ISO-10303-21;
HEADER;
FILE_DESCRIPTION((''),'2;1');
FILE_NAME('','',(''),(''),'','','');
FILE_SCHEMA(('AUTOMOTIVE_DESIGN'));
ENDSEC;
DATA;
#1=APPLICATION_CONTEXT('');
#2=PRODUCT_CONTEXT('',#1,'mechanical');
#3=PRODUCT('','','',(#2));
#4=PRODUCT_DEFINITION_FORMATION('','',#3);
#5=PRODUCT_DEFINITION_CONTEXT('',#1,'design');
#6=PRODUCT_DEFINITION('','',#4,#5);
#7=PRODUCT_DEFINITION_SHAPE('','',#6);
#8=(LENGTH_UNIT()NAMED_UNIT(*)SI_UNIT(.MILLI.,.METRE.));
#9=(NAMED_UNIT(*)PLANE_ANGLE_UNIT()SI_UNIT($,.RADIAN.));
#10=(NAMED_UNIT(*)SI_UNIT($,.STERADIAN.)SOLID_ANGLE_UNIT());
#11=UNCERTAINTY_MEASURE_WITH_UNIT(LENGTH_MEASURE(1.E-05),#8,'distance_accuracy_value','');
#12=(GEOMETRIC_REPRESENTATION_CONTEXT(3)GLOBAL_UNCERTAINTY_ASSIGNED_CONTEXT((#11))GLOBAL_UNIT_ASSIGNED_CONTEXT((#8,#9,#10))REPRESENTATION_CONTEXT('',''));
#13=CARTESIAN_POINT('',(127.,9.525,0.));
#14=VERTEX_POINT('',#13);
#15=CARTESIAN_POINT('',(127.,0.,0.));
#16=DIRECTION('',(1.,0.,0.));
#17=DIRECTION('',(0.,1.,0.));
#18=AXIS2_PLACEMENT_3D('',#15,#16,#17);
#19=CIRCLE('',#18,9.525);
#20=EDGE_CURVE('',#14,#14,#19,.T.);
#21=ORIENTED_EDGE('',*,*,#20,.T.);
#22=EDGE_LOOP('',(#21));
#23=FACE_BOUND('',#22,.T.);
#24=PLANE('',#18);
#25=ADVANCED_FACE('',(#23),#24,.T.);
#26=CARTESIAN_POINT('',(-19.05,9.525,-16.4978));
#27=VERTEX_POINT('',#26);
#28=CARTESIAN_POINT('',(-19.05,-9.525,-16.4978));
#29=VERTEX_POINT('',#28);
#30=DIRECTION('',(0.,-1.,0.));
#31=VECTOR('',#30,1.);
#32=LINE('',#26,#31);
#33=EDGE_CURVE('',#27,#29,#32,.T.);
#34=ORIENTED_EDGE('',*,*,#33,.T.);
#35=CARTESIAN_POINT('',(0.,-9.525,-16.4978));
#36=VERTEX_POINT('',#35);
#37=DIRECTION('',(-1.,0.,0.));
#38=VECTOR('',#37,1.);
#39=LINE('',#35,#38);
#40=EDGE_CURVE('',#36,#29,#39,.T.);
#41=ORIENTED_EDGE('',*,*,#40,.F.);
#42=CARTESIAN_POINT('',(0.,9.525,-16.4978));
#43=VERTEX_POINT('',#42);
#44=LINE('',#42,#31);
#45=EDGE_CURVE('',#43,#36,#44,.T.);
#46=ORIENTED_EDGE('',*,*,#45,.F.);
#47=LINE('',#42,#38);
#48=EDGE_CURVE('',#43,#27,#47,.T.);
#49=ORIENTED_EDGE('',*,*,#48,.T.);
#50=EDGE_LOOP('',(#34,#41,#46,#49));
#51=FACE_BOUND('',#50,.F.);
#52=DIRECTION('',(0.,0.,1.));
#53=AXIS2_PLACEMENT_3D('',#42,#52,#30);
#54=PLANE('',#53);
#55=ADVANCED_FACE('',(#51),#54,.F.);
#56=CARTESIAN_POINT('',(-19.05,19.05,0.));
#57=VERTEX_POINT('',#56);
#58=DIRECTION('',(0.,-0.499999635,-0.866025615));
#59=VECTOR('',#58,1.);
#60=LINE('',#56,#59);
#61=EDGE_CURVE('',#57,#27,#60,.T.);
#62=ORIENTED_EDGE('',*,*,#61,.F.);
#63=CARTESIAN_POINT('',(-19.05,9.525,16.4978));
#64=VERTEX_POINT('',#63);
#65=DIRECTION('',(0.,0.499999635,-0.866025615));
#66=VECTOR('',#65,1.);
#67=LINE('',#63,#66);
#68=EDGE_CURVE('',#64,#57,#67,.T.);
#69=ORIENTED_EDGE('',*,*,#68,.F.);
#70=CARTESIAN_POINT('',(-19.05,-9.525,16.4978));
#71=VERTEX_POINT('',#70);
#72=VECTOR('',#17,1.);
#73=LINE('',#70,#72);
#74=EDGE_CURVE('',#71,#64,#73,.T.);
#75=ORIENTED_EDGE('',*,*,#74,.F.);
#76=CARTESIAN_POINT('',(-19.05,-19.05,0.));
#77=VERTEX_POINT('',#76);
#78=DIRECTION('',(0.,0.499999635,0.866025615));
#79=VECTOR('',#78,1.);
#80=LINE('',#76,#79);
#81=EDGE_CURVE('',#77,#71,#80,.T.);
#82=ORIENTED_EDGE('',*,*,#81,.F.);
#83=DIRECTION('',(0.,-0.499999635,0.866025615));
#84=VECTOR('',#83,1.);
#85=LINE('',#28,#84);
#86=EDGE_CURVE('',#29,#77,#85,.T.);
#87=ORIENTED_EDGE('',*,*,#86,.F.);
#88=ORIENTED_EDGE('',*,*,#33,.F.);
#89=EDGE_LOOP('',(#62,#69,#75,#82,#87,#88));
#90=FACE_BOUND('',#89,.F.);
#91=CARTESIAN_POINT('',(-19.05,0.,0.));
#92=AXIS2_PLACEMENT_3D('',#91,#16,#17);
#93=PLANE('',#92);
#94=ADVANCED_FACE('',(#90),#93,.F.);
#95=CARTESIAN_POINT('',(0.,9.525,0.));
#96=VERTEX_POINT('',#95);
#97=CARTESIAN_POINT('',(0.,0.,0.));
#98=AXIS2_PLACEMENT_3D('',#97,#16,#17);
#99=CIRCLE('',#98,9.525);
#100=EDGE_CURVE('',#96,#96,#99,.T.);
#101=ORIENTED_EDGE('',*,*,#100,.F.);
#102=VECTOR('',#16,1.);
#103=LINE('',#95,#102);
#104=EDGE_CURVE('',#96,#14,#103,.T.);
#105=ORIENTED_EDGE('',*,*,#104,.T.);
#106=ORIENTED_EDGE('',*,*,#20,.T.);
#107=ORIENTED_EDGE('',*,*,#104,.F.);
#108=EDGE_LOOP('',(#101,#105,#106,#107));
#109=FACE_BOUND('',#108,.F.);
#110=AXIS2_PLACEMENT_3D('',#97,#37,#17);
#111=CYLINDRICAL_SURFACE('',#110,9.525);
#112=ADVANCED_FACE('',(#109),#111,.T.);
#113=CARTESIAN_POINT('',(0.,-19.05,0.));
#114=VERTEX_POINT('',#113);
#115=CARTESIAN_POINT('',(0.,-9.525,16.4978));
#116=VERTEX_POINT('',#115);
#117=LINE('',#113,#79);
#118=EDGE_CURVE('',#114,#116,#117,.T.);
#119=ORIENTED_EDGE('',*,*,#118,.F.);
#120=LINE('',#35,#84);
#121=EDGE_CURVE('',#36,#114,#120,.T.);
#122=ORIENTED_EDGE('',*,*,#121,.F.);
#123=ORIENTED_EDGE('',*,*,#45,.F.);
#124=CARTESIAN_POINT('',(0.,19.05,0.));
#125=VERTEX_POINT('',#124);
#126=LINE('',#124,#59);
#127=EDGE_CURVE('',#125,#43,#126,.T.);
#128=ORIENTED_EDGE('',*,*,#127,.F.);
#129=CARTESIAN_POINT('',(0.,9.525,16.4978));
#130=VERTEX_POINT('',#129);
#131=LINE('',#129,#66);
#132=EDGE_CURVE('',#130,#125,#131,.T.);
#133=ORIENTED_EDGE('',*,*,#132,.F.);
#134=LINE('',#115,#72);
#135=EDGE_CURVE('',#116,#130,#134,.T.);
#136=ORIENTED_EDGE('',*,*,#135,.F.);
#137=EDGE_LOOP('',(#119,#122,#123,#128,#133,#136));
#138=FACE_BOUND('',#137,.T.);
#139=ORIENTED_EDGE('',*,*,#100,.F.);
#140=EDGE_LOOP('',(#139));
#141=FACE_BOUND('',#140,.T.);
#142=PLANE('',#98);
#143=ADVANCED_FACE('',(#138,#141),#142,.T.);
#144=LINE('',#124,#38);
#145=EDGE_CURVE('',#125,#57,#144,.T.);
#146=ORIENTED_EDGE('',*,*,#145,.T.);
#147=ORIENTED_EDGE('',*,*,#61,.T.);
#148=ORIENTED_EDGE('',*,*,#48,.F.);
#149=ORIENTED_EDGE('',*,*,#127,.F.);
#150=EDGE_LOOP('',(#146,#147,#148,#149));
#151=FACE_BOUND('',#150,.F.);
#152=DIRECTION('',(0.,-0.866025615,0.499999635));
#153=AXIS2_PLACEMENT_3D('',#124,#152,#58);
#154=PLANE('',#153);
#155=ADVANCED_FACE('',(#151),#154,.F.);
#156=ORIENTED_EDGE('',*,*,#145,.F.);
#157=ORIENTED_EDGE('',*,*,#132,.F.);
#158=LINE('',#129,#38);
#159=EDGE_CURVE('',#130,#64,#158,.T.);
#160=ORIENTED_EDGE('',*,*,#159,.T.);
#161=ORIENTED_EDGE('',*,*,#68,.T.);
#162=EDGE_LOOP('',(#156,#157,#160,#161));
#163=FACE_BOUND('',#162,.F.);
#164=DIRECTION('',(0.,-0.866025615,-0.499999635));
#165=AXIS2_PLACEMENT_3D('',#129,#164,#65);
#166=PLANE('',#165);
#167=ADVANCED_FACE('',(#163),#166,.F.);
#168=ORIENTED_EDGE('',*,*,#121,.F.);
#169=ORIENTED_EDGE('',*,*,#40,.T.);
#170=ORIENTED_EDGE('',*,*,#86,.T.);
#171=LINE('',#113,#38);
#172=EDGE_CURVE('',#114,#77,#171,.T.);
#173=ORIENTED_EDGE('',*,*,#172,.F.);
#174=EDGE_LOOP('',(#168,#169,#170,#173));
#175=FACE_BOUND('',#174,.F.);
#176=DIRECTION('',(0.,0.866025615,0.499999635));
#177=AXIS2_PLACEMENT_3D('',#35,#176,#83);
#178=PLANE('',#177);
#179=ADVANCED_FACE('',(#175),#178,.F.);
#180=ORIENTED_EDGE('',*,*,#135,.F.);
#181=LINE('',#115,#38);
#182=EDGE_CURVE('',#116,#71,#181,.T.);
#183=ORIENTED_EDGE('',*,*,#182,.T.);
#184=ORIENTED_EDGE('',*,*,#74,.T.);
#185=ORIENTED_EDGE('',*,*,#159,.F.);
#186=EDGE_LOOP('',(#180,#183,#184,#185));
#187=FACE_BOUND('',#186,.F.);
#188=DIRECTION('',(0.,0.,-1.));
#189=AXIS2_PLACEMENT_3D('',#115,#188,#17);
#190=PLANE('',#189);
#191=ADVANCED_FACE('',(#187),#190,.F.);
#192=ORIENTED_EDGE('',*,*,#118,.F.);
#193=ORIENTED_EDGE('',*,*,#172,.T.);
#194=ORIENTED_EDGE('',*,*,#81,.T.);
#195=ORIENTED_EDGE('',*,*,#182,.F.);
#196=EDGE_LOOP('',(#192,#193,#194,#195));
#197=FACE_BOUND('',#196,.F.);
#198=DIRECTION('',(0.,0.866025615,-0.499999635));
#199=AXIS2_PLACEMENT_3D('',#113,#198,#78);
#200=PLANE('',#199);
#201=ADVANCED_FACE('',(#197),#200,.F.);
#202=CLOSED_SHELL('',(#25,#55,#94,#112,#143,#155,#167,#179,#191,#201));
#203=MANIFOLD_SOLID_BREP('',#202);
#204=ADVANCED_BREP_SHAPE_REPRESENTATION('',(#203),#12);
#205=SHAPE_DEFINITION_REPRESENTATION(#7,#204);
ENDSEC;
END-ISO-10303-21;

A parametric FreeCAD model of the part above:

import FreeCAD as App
import Part
import Sketcher
Q = App.Units.Quantity


def add_polygon(sketch, points):
    """Adds a closed chain of lines whose ends are joined by coincident constraints."""
    first, n = sketch.GeometryCount, len(points)
    for a, b in zip(points, points[1:] + points[:1]):
        sketch.addGeometry(Part.LineSegment(App.Vector(*a, 0), App.Vector(*b, 0)), False)
    for i in range(n):
        sketch.addConstraint(Sketcher.Constraint("Coincident", first + i, 2, first + (i + 1) % n, 1))

doc = App.newDocument("Part")
body = doc.addObject("PartDesign::Body", "Body")

sketch1 = body.newObject("Sketcher::SketchObject", "Sketch")
sketch1.AttachmentSupport = (doc.getObject("YZ_Plane"), [""])
sketch1.MapMode = "FlatFace"
sketch1.addGeometry(Part.Circle(App.Vector(0, 0, 0), App.Vector(0, 0, 1), 10), False)
sketch1.addConstraint([
    Sketcher.Constraint("Coincident", 0, 3, -1, 1),
    Sketcher.Constraint("Diameter", 0, Q("0.75 in")),
])
pad1 = body.newObject("PartDesign::Pad", "Pad")
pad1.Profile = sketch1
pad1.Length = Q("5 in")

sketch2 = body.newObject("Sketcher::SketchObject", "Sketch001")
sketch2.AttachmentSupport = (doc.getObject("YZ_Plane"), [""])
sketch2.MapMode = "FlatFace"
add_polygon(sketch2, [(10, -16), (19, 0), (10, 16), (-10, 16), (-19, 0), (-10, -16)])
sketch2.addConstraint([
    Sketcher.Constraint("Horizontal", 2),
    Sketcher.Constraint("Horizontal", 5),
    Sketcher.Constraint("Symmetric", 0, 2, 3, 2, -1, 1),
    Sketcher.Constraint("Symmetric", 1, 2, 4, 2, -1, 1),
    Sketcher.Constraint("PointOnObject", 0, 2, -1),
    Sketcher.Constraint("Parallel", 0, 3),
    Sketcher.Constraint("Vertical", 2, 2, 4, 2),
    Sketcher.Constraint("DistanceX", 3, 2, 0, 2, Q("1.5 in")),
    Sketcher.Constraint("Angle", 0, Q("60 deg")),
    Sketcher.Constraint("DistanceX", 2, 2, 2, 1, Q("0.75 in")),
])
pad2 = body.newObject("PartDesign::Pad", "Pad001")
pad2.Profile = sketch2
pad2.Length = Q("0.75 in")
pad2.Reversed = True

doc.recompute()
